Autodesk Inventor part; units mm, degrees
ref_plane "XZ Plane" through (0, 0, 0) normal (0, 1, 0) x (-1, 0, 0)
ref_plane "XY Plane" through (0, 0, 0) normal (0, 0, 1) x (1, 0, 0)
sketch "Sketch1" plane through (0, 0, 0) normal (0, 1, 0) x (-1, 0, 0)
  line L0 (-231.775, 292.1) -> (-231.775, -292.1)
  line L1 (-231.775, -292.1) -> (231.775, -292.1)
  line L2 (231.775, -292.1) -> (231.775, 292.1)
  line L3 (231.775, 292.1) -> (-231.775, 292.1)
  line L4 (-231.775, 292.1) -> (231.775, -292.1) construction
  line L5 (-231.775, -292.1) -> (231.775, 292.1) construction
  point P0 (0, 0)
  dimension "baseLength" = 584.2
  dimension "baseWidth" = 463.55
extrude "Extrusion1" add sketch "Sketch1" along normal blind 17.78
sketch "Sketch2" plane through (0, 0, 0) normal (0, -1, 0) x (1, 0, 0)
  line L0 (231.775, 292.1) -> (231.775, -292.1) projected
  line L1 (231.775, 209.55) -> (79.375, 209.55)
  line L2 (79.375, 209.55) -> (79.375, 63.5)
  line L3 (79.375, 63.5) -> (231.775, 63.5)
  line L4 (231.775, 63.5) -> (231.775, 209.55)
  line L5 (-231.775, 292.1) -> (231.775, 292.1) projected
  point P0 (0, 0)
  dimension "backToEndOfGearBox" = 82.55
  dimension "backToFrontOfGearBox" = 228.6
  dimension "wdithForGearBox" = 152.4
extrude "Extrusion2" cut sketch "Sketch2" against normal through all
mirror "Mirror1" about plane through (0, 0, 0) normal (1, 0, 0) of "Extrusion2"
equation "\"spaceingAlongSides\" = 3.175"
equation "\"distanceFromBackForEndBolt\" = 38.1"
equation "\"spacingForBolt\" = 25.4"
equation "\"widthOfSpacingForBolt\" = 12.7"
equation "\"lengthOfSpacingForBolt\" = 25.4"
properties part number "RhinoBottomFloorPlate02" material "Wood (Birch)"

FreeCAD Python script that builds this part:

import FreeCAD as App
import Part
import Sketcher
from FreeCAD import Vector
Q = App.Units.Quantity

doc = App.newDocument("Part")
params = doc.addObject("Spreadsheet::Sheet", "Params")
for row, (alias, value) in enumerate([
    ("sketch1_height", "23 in"),
    ("sketch1_width", "18.25 in"),
    ("pad1_length", "0.7 in"),
    ("sketch2_width", "6 in"),
    ("sketch2_height", "5.75 in"),
], start=1):
    params.set(f"A{row}", alias)
    params.set(f"B{row}", "=" + value)
    params.setAlias(f"B{row}", alias)

body = doc.addObject("PartDesign::Body", "Body")

sketch1 = doc.addObject("Sketcher::SketchObject", "Sketch")
body.addObject(sketch1)
sketch1.AttachmentSupport = (doc.XZ_Plane, [""])
sketch1.MapMode = "FlatFace"
sketch1.addGeometry(Part.LineSegment(Vector(-232, 292, 0), Vector(232, 292, 0)), False)
sketch1.addGeometry(Part.LineSegment(Vector(232, 292, 0), Vector(232, -292, 0)), False)
sketch1.addGeometry(Part.LineSegment(Vector(232, -292, 0), Vector(-232, -292, 0)), False)
sketch1.addGeometry(Part.LineSegment(Vector(-232, -292, 0), Vector(-232, 292, 0)), False)
sketch1.addConstraint(Sketcher.Constraint("Coincident", 0, 2, 1, 1))
sketch1.addConstraint(Sketcher.Constraint("Coincident", 1, 2, 2, 1))
sketch1.addConstraint(Sketcher.Constraint("Coincident", 2, 2, 3, 1))
sketch1.addConstraint(Sketcher.Constraint("Coincident", 3, 2, 0, 1))
sketch1.addConstraint(Sketcher.Constraint("Horizontal", 0))
sketch1.addConstraint(Sketcher.Constraint("Vertical", 1))
sketch1.addConstraint(Sketcher.Constraint("Horizontal", 2))
sketch1.addConstraint(Sketcher.Constraint("Vertical", 3))
sketch1.addConstraint(Sketcher.Constraint("Symmetric", 0, 2, 2, 2, -1, 1))
sketch1.addConstraint(Sketcher.Constraint("DistanceY", 1, 2, 1, 1, Q("23 in")))
sketch1.addConstraint(Sketcher.Constraint("DistanceX", 0, 1, 0, 2, Q("18.25 in")))
sketch1.setExpression("Constraints[9]", "Params.sketch1_height")
sketch1.setExpression("Constraints[10]", "Params.sketch1_width")
pad1 = doc.addObject("PartDesign::Pad", "Pad")
body.addObject(pad1)
pad1.Profile = sketch1
pad1.setExpression("Length", "Params.pad1_length")
pad1.Reversed = True

sketch2 = doc.addObject("Sketcher::SketchObject", "Sketch001")
body.addObject(sketch2)
sketch2.AttachmentSupport = (doc.XZ_Plane, [""])
sketch2.MapMode = "FlatFace"
sketch2.addGeometry(Part.LineSegment(Vector(232, 64, 0), Vector(232, 210, 0)), False)
sketch2.addGeometry(Part.LineSegment(Vector(232, 210, 0), Vector(79, 210, 0)), False)
sketch2.addGeometry(Part.LineSegment(Vector(79, 210, 0), Vector(79, 64, 0)), False)
sketch2.addGeometry(Part.LineSegment(Vector(79, 64, 0), Vector(232, 64, 0)), False)
sketch2.addConstraint(Sketcher.Constraint("Coincident", 0, 2, 1, 1))
sketch2.addConstraint(Sketcher.Constraint("Coincident", 1, 2, 2, 1))
sketch2.addConstraint(Sketcher.Constraint("Coincident", 2, 2, 3, 1))
sketch2.addConstraint(Sketcher.Constraint("Coincident", 3, 2, 0, 1))
sketch2.addConstraint(Sketcher.Constraint("Vertical", 0))
sketch2.addConstraint(Sketcher.Constraint("Horizontal", 1))
sketch2.addConstraint(Sketcher.Constraint("Vertical", 2))
sketch2.addConstraint(Sketcher.Constraint("Horizontal", 3))
sketch2.addConstraint(Sketcher.Constraint("DistanceX", 1, 2, 1, 1, Q("6 in")))
sketch2.addConstraint(Sketcher.Constraint("DistanceY", 0, 1, 0, 2, Q("5.75 in")))
sketch2.addConstraint(Sketcher.Constraint("DistanceY", -1, 1, 2, 2, Q("2.5 in")))
sketch2.addConstraint(Sketcher.Constraint("DistanceX", -1, 1, 0, 2, Q("9.125 in")))
sketch2.setExpression("Constraints[8]", "Params.sketch2_width")
sketch2.setExpression("Constraints[9]", "Params.sketch2_height")
pocket1 = doc.addObject("PartDesign::Pocket", "Pocket")
body.addObject(pocket1)
pocket1.Profile = sketch2
pocket1.Type = "ThroughAll"
doc.recompute()

mirrored = doc.addObject("PartDesign::Mirrored", "Mirrored")
body.addObject(mirrored)
mirrored.Originals = [pocket1]
mirrored.MirrorPlane = (doc.YZ_Plane, [""])
body.Tip = mirrored

doc.recompute()
